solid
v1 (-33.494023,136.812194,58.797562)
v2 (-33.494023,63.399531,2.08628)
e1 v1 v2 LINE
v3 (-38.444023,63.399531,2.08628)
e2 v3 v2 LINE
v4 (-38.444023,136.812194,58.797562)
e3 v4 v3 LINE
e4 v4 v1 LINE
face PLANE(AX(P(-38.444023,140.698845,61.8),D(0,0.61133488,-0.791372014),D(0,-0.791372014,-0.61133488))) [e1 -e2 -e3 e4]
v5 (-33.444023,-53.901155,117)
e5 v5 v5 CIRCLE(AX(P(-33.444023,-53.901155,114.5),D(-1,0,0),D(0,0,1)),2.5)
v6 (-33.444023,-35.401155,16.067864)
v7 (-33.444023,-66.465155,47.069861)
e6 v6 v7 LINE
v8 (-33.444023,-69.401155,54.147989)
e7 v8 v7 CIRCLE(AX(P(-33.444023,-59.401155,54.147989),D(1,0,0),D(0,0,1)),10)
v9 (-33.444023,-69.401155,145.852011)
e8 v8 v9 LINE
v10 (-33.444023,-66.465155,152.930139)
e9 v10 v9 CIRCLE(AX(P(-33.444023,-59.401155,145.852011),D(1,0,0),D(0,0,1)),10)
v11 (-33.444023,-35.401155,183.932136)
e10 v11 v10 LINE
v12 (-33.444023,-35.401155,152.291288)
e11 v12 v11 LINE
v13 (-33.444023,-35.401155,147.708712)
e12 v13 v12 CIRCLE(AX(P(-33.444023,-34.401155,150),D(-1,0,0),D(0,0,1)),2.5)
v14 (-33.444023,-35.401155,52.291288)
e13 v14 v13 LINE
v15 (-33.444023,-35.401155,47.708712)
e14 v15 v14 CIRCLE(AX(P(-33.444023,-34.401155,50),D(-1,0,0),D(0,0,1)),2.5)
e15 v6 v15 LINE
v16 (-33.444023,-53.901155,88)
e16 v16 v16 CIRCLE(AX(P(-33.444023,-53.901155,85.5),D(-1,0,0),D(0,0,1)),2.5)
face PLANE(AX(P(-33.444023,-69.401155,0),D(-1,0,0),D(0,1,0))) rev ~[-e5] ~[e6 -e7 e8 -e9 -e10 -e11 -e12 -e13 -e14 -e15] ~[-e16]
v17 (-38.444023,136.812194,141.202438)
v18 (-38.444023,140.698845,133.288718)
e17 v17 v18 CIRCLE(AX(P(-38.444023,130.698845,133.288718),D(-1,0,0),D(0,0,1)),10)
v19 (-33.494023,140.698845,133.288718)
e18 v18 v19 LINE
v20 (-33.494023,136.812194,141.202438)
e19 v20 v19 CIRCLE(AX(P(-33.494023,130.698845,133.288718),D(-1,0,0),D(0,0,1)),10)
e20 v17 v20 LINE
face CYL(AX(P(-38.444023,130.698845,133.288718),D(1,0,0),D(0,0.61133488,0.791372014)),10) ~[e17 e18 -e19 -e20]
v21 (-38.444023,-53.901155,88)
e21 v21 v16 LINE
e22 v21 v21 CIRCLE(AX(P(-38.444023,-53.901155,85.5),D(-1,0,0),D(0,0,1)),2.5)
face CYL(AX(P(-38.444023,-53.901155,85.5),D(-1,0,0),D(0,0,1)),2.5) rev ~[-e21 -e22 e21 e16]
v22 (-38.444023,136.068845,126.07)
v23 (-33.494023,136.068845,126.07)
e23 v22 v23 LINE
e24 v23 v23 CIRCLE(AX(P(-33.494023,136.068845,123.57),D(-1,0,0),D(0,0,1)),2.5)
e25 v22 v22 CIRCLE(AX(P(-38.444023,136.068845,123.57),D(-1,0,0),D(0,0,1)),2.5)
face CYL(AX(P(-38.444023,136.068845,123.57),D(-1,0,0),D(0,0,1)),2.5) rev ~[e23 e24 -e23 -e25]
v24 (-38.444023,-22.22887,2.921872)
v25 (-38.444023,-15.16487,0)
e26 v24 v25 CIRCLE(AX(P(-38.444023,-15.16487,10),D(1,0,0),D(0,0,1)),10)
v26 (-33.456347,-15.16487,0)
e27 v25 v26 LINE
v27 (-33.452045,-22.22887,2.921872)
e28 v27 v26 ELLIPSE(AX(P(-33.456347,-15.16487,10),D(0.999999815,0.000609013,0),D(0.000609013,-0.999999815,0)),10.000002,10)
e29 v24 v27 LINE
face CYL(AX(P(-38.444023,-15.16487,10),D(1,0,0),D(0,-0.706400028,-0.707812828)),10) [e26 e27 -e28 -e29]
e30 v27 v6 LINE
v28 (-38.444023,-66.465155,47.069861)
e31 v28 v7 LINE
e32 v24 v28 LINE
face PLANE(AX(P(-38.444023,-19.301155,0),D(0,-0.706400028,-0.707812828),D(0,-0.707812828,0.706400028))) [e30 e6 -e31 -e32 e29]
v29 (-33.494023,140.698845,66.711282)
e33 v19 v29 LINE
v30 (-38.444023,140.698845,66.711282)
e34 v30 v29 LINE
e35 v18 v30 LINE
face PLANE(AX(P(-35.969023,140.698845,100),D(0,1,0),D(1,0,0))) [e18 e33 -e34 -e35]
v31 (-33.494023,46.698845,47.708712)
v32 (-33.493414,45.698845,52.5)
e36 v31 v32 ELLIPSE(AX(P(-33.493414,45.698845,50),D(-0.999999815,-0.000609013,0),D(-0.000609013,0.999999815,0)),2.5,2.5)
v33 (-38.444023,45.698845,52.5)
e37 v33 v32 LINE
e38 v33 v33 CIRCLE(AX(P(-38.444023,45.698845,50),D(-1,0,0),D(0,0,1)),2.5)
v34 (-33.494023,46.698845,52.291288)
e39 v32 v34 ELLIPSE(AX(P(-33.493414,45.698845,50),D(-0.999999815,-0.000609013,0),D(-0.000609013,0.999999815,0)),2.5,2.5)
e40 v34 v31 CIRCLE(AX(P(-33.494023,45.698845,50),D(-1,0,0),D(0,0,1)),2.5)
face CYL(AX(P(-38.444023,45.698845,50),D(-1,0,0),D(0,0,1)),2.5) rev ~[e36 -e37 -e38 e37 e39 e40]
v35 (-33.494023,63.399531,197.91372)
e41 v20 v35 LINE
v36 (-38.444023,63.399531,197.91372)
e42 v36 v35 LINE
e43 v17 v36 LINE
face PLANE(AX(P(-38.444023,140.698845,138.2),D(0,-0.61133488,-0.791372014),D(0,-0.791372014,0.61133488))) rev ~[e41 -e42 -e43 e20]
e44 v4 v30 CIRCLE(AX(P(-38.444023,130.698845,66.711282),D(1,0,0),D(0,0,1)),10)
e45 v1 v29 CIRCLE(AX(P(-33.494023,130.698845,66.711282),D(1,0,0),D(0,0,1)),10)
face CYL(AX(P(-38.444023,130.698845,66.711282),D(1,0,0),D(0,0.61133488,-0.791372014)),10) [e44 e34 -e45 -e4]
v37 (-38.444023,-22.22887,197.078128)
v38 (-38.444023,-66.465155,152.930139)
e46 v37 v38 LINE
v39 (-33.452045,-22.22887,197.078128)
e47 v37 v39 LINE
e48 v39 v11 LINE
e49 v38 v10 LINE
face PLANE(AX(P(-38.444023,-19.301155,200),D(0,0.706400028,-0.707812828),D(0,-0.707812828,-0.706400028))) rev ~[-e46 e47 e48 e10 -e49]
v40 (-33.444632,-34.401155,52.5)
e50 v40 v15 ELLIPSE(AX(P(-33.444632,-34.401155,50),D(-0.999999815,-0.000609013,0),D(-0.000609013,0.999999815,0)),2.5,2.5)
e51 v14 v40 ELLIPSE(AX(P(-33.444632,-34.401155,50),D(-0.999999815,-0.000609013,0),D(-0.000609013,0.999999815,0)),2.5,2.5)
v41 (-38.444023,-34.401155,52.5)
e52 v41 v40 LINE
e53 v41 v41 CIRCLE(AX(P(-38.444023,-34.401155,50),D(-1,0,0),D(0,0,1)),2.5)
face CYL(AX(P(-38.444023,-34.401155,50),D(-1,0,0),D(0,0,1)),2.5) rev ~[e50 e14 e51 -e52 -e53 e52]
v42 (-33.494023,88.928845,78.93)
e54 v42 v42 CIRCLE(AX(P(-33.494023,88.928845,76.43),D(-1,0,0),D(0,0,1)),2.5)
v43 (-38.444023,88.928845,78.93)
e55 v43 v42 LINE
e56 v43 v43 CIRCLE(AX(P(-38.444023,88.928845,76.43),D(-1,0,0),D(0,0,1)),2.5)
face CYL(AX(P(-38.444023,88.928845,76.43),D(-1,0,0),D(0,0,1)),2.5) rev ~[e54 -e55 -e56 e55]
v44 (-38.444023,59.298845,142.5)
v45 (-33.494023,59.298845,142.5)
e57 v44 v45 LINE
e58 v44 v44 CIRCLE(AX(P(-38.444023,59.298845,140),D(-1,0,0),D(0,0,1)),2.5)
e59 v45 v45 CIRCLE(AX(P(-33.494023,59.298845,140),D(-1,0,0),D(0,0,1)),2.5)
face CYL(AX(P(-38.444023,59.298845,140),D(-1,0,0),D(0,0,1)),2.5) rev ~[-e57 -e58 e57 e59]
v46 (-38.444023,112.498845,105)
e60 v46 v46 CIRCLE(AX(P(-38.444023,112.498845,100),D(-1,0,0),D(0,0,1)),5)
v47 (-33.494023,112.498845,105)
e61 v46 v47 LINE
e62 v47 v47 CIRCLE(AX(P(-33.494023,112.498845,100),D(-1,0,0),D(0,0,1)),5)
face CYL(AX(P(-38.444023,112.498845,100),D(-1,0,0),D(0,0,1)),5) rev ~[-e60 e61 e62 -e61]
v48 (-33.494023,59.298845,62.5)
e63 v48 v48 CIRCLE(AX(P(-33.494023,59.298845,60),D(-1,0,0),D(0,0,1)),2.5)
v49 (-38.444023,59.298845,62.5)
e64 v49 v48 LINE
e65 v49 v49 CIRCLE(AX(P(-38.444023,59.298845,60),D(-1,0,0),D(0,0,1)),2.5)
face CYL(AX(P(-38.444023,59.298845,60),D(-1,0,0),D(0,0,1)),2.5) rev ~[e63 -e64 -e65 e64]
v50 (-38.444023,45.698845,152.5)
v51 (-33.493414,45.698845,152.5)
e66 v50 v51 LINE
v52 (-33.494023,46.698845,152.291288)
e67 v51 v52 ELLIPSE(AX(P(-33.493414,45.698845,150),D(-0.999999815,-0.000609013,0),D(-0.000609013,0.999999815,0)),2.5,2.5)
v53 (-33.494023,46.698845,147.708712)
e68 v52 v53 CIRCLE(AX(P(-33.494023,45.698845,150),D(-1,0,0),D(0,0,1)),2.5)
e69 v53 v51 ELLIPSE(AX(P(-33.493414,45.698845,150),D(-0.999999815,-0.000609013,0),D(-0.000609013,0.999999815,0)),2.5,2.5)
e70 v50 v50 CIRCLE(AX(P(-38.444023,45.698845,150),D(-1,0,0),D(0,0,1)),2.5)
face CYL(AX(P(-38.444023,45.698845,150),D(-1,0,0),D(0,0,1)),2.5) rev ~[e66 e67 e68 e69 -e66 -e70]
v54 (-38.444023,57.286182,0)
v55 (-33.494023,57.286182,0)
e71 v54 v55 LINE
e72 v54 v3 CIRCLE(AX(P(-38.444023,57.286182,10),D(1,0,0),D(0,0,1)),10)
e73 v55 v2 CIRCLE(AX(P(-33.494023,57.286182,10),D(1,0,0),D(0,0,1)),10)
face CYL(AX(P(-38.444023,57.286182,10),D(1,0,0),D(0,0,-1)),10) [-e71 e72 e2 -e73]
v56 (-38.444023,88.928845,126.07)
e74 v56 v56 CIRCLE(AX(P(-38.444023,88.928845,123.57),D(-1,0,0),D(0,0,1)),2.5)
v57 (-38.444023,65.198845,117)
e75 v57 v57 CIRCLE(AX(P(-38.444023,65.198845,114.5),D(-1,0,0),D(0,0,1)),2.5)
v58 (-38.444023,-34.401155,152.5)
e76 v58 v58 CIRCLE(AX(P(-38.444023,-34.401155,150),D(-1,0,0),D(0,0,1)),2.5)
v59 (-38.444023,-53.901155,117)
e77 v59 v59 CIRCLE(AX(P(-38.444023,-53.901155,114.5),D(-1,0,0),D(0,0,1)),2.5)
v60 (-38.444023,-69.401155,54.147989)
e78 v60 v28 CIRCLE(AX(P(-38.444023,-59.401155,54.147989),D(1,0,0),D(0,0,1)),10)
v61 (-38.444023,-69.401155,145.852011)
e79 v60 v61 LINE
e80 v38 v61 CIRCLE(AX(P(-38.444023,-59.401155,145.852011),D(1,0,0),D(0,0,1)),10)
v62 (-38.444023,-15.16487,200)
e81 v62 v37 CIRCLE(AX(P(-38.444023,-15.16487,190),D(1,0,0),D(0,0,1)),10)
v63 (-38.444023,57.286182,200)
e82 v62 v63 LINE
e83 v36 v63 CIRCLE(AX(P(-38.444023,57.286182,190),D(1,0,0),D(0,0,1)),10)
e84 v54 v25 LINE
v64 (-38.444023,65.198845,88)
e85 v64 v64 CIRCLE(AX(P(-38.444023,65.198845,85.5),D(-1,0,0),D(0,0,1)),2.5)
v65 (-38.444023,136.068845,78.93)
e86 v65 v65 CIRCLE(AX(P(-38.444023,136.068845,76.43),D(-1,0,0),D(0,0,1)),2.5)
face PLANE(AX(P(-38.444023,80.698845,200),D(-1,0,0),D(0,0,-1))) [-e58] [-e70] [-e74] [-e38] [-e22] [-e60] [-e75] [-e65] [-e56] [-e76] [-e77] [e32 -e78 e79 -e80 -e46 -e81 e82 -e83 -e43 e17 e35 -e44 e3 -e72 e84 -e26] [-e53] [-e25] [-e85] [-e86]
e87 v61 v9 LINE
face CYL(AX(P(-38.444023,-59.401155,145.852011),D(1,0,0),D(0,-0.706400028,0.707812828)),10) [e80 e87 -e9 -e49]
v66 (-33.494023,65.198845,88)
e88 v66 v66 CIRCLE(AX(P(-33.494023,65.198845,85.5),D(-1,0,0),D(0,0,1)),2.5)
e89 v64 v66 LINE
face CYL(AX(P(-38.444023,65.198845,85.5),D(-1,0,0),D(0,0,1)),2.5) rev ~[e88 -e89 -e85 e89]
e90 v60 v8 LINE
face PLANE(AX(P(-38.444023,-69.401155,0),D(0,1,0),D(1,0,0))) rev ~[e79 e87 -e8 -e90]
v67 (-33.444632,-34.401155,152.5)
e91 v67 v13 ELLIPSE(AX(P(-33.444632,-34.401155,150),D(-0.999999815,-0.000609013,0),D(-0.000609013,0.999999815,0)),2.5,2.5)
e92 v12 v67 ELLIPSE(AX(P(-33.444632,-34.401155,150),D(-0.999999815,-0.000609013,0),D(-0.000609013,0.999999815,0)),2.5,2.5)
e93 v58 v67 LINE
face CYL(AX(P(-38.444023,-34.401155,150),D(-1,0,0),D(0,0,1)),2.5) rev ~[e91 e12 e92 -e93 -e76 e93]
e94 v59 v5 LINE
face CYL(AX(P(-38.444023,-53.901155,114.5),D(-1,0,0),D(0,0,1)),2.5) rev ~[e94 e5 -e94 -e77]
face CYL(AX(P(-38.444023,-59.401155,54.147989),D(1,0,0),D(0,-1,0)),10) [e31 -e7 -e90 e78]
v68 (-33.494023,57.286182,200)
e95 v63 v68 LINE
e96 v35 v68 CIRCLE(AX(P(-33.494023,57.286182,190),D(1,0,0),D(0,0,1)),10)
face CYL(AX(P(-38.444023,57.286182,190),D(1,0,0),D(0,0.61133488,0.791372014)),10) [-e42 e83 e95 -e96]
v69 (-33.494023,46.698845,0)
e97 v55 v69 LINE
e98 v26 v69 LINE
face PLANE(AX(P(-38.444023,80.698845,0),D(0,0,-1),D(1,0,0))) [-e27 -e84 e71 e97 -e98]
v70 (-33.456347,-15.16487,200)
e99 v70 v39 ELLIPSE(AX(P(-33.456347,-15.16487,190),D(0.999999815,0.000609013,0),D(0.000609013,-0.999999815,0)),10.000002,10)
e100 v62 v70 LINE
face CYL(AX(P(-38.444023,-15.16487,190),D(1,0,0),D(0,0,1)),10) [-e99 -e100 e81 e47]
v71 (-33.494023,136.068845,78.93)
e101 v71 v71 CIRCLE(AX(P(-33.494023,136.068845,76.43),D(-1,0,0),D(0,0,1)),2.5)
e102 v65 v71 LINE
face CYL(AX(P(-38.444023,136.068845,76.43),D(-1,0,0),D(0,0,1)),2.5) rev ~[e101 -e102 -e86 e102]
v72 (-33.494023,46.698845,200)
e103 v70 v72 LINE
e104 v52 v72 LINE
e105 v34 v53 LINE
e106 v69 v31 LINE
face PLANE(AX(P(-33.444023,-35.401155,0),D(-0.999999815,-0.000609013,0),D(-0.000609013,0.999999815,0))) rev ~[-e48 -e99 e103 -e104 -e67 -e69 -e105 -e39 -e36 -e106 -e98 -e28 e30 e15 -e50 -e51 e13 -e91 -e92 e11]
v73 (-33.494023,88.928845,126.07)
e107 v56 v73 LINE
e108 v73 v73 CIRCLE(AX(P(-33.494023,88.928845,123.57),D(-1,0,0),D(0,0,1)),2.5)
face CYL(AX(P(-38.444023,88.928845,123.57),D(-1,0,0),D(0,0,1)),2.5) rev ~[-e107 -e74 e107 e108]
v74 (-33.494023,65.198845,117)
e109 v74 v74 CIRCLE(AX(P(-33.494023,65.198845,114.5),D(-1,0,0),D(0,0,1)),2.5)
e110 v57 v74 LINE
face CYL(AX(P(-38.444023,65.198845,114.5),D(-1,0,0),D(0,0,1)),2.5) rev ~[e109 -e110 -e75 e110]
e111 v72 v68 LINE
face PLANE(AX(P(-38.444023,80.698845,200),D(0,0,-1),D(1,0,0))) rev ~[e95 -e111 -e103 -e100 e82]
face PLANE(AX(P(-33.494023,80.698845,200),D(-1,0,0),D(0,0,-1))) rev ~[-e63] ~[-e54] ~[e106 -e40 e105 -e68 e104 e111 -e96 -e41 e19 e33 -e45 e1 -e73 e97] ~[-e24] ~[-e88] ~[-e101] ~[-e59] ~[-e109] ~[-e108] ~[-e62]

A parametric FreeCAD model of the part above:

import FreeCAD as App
import Part
import Sketcher
from FreeCAD import Vector


def edges_at(feature, points):
    """Names of the edges that pass closest to the given points."""
    edges = feature.Shape.Edges
    near = lambda p: min(range(len(edges)), key=lambda i: edges[i].distToShape(Part.Vertex(*p))[0])
    return sorted({f"Edge{near(p) + 1}" for p in points})

doc = App.newDocument("Part")
body = doc.addObject("PartDesign::Body", "Body")

sketch1 = doc.addObject("Sketcher::SketchObject", "Sketch")
body.addObject(sketch1)
sketch1.AttachmentSupport = (doc.XY_Plane, [""])
sketch1.MapMode = "FlatFace"
sketch1.addGeometry([
    Part.LineSegment(Vector(-38.4, -69.4, 0), Vector(-33.4, -69.4, 0)),
    Part.LineSegment(Vector(-33.4, -69.4, 0), Vector(-33.4, -35.4, 0)),
    Part.LineSegment(Vector(-33.4, -35.4, 0), Vector(-33.5, 46.7, 0)),
    Part.LineSegment(Vector(-33.5, 46.7, 0), Vector(-33.5, 80.7, 0)),
    Part.LineSegment(Vector(-33.5, 80.7, 0), Vector(-38.4, 80.7, 0)),
    Part.LineSegment(Vector(-38.4, 80.7, 0), Vector(-38.4, -69.4, 0)),
], False)
sketch1.addConstraint([
    Sketcher.Constraint("Coincident", 0, 2, 1, 1),
    Sketcher.Constraint("Coincident", 1, 2, 2, 1),
    Sketcher.Constraint("Coincident", 2, 2, 3, 1),
    Sketcher.Constraint("Coincident", 3, 2, 4, 1),
    Sketcher.Constraint("Coincident", 4, 2, 5, 1),
    Sketcher.Constraint("Coincident", 5, 2, 0, 1),
    Sketcher.Constraint("Horizontal", 0),
    Sketcher.Constraint("Vertical", 1),
    Sketcher.Constraint("Vertical", 3),
    Sketcher.Constraint("Horizontal", 4),
    Sketcher.Constraint("Vertical", 5),
    Sketcher.Constraint("Equal", 1, 3),
    Sketcher.Constraint("DistanceX", 0, 1, 0, 2, 5.0),
    Sketcher.Constraint("DistanceY", 1, 1, 1, 2, 34.0),
    Sketcher.Constraint("DistanceY", 5, 2, 5, 1, 150.1),
    Sketcher.Constraint("DistanceX", 4, 2, 4, 1, 4.95),
    Sketcher.Constraint("DistanceX", 0, 2, -1, 1, 33.444023),
    Sketcher.Constraint("DistanceY", 0, 2, -1, 1, 69.401155),
])
pad1 = doc.addObject("PartDesign::Pad", "Pad")
body.addObject(pad1)
pad1.Profile = sketch1
pad1.Length = 200

sketch2 = doc.addObject("Sketcher::SketchObject", "Sketch001")
body.addObject(sketch2)
sketch2.AttachmentSupport = (doc.YZ_Plane, [""])
sketch2.MapMode = "FlatFace"
sketch2.AttachmentOffset = App.Placement(Vector(0, 0, -38.444023), App.Rotation())
sketch2.addGeometry([
    Part.Circle(Vector(65.2, 85.5, 0), Vector(0, 0, 1), 2.5),
    Part.Circle(Vector(65.2, 114.5, 0), Vector(0, 0, 1), 2.5),
    Part.Circle(Vector(45.7, 50, 0), Vector(0, 0, 1), 2.5),
    Part.Circle(Vector(45.7, 150, 0), Vector(0, 0, 1), 2.5),
    Part.Circle(Vector(-34.4, 150, 0), Vector(0, 0, 1), 2.5),
    Part.Circle(Vector(-53.9, 114.5, 0), Vector(0, 0, 1), 2.5),
    Part.Circle(Vector(-53.9, 85.5, 0), Vector(0, 0, 1), 2.5),
    Part.Circle(Vector(-34.4, 50, 0), Vector(0, 0, 1), 2.5),
], False)
sketch2.addConstraint([
    Sketcher.Constraint("Equal", 0, 1),
    Sketcher.Constraint("Equal", 1, 2),
    Sketcher.Constraint("Equal", 2, 3),
    Sketcher.Constraint("Equal", 3, 4),
    Sketcher.Constraint("Equal", 4, 5),
    Sketcher.Constraint("Equal", 5, 6),
    Sketcher.Constraint("Equal", 6, 7),
    Sketcher.Constraint("Horizontal", 3, 3, 4, 3),
    Sketcher.Constraint("Horizontal", 1, 3, 5, 3),
    Sketcher.Constraint("Horizontal", 0, 3, 6, 3),
    Sketcher.Constraint("Horizontal", 2, 3, 7, 3),
    Sketcher.Constraint("Vertical", 0, 3, 1, 3),
    Sketcher.Constraint("Vertical", 2, 3, 3, 3),
    Sketcher.Constraint("Vertical", 5, 3, 6, 3),
    Sketcher.Constraint("Vertical", 4, 3, 7, 3),
    Sketcher.Constraint("Diameter", 0, 5.0),
    Sketcher.Constraint("DistanceY", -1, 1, 2, 3, 50.0),
    Sketcher.Constraint("DistanceY", -1, 1, 3, 3, 150.0),
    Sketcher.Constraint("DistanceY", 0, 3, 1, 3, 29.0),
    Sketcher.Constraint("DistanceY", -1, 1, 0, 3, 85.5),
    Sketcher.Constraint("DistanceX", 2, 3, 0, 3, 19.5),
    Sketcher.Constraint("DistanceX", 4, 3, 3, 3, 80.1),
    Sketcher.Constraint("DistanceX", 5, 3, 4, 3, 19.5),
    Sketcher.Constraint("DistanceX", -1, 1, 0, 3, 65.198845),
])
pocket1 = doc.addObject("PartDesign::Pocket", "Pocket")
body.addObject(pocket1)
pocket1.Profile = sketch2
pocket1.Length = 100
pocket1.Reversed = True

sketch3 = doc.addObject("Sketcher::SketchObject", "Sketch002")
body.addObject(sketch3)
sketch3.AttachmentSupport = (doc.XZ_Plane, [""])
sketch3.MapMode = "FlatFace"
sketch3.AttachmentOffset = App.Placement(Vector(0, 0, -80.698845), App.Rotation())
sketch3.addGeometry([
    Part.LineSegment(Vector(-38.4, 0, 0), Vector(-38.4, 200, 0)),
    Part.LineSegment(Vector(-38.4, 200, 0), Vector(-33.5, 200, 0)),
    Part.LineSegment(Vector(-33.5, 200, 0), Vector(-33.5, 0, 0)),
    Part.LineSegment(Vector(-33.5, 0, 0), Vector(-38.4, 0, 0)),
], False)
sketch3.addConstraint([
    Sketcher.Constraint("Coincident", 0, 2, 1, 1),
    Sketcher.Constraint("Coincident", 1, 2, 2, 1),
    Sketcher.Constraint("Coincident", 2, 2, 3, 1),
    Sketcher.Constraint("Coincident", 3, 2, 0, 1),
    Sketcher.Constraint("Vertical", 0),
    Sketcher.Constraint("Horizontal", 1),
    Sketcher.Constraint("Vertical", 2),
    Sketcher.Constraint("Horizontal", 3),
    Sketcher.Constraint("PointOnObject", 2, 2, -1),
    Sketcher.Constraint("DistanceY", 0, 1, 0, 2, 200.0),
    Sketcher.Constraint("DistanceX", 1, 1, 1, 2, 4.95),
    Sketcher.Constraint("DistanceX", 0, 2, -1, 1, 38.444023),
])
pad2 = doc.addObject("PartDesign::Pad", "Pad001")
body.addObject(pad2)
pad2.Profile = sketch3
pad2.Length = 60
pad2.Reversed = True

sketch4 = doc.addObject("Sketcher::SketchObject", "Sketch003")
body.addObject(sketch4)
sketch4.AttachmentSupport = (doc.YZ_Plane, [""])
sketch4.MapMode = "FlatFace"
sketch4.AttachmentOffset = App.Placement(Vector(0, 0, -38.444023), App.Rotation())
sketch4.addGeometry([
    Part.Circle(Vector(136.1, 76.4, 0), Vector(0, 0, 1), 2.5),
    Part.Circle(Vector(136.1, 123.6, 0), Vector(0, 0, 1), 2.5),
    Part.Circle(Vector(88.9, 76.4, 0), Vector(0, 0, 1), 2.5),
    Part.Circle(Vector(88.9, 123.6, 0), Vector(0, 0, 1), 2.5),
    Part.Circle(Vector(112.5, 100, 0), Vector(0, 0, 1), 5),
    Part.Circle(Vector(59.3, 60, 0), Vector(0, 0, 1), 2.5),
    Part.Circle(Vector(59.3, 140, 0), Vector(0, 0, 1), 2.5),
    Part.LineSegment(Vector(60.7, 0, 0), Vector(140.7, 61.8, 0)),
    Part.LineSegment(Vector(140.7, 61.8, 0), Vector(140.7, 0, 0)),
    Part.LineSegment(Vector(140.7, 0, 0), Vector(60.7, 0, 0)),
    Part.LineSegment(Vector(-69.4, 50, 0), Vector(-19.3, 0, 0)),
    Part.LineSegment(Vector(-19.3, 0, 0), Vector(-69.4, 0, 0)),
    Part.LineSegment(Vector(-69.4, 0, 0), Vector(-69.4, 50, 0)),
    Part.LineSegment(Vector(-19.3, 200, 0), Vector(-69.4, 150, 0)),
    Part.LineSegment(Vector(-69.4, 150, 0), Vector(-69.4, 200, 0)),
    Part.LineSegment(Vector(-69.4, 200, 0), Vector(-19.3, 200, 0)),
    Part.LineSegment(Vector(140.7, 138.2, 0), Vector(60.7, 200, 0)),
    Part.LineSegment(Vector(60.7, 200, 0), Vector(140.7, 200, 0)),
    Part.LineSegment(Vector(140.7, 200, 0), Vector(140.7, 138.2, 0)),
], False)
sketch4.addConstraint([
    Sketcher.Constraint("Coincident", 7, 2, 8, 1),
    Sketcher.Constraint("Coincident", 8, 2, 9, 1),
    Sketcher.Constraint("Coincident", 9, 2, 7, 1),
    Sketcher.Constraint("Coincident", 10, 2, 11, 1),
    Sketcher.Constraint("Coincident", 11, 2, 12, 1),
    Sketcher.Constraint("Coincident", 12, 2, 10, 1),
    Sketcher.Constraint("Coincident", 13, 2, 14, 1),
    Sketcher.Constraint("Coincident", 14, 2, 15, 1),
    Sketcher.Constraint("Coincident", 15, 2, 13, 1),
    Sketcher.Constraint("Coincident", 16, 2, 17, 1),
    Sketcher.Constraint("Coincident", 17, 2, 18, 1),
    Sketcher.Constraint("Coincident", 18, 2, 16, 1),
    Sketcher.Constraint("Vertical", 8),
    Sketcher.Constraint("Horizontal", 9),
    Sketcher.Constraint("Horizontal", 11),
    Sketcher.Constraint("Vertical", 12),
    Sketcher.Constraint("Vertical", 14),
    Sketcher.Constraint("Horizontal", 15),
    Sketcher.Constraint("Horizontal", 17),
    Sketcher.Constraint("Vertical", 18),
    Sketcher.Constraint("Equal", 0, 1),
    Sketcher.Constraint("Equal", 1, 2),
    Sketcher.Constraint("Equal", 2, 3),
    Sketcher.Constraint("Equal", 3, 5),
    Sketcher.Constraint("Equal", 5, 6),
    Sketcher.Constraint("PointOnObject", 8, 2, -1),
    Sketcher.Constraint("PointOnObject", 10, 2, -1),
    Sketcher.Constraint("Horizontal", 0, 3, 2, 3),
    Sketcher.Constraint("Horizontal", 1, 3, 3, 3),
    Sketcher.Constraint("Horizontal", 15, 2, 16, 2),
    Sketcher.Constraint("Vertical", 0, 3, 1, 3),
    Sketcher.Constraint("Vertical", 2, 3, 3, 3),
    Sketcher.Constraint("Vertical", 5, 3, 6, 3),
    Sketcher.Constraint("Vertical", 12, 2, 13, 2),
    Sketcher.Constraint("Vertical", 10, 2, 15, 2),
    Sketcher.Constraint("Vertical", 9, 2, 16, 2),
    Sketcher.Constraint("Vertical", 8, 2, 17, 2),
    Sketcher.Constraint("Equal", 12, 14),
    Sketcher.Constraint("Equal", 8, 18),
    Sketcher.Constraint("Diameter", 0, 5.0),
    Sketcher.Constraint("Diameter", 4, 10.0),
    Sketcher.Constraint("DistanceX", 9, 2, 9, 1, 80.0),
    Sketcher.Constraint("DistanceY", 12, 1, 12, 2, 50.0),
    Sketcher.Constraint("DistanceX", 11, 2, 11, 1, 50.1),
    Sketcher.Constraint("DistanceY", 8, 2, 8, 1, 61.8),
    Sketcher.Constraint("DistanceY", -1, 1, 4, 3, 100.0),
    Sketcher.Constraint("DistanceY", -1, 1, 5, 3, 60.0),
    Sketcher.Constraint("DistanceY", -1, 1, 6, 3, 140.0),
    Sketcher.Constraint("DistanceY", -1, 1, 13, 2, 150.0),
    Sketcher.Constraint("DistanceX", 10, 2, 9, 2, 80.0),
    Sketcher.Constraint("DistanceX", 5, 3, 4, 3, 53.2),
    Sketcher.Constraint("DistanceX", 4, 3, 7, 2, 28.2),
    Sketcher.Constraint("DistanceY", -1, 1, 0, 3, 76.43),
    Sketcher.Constraint("DistanceY", -1, 1, 1, 3, 123.57),
    Sketcher.Constraint("DistanceX", 2, 3, 0, 3, 47.14),
    Sketcher.Constraint("DistanceX", 4, 3, 0, 3, 23.57),
    Sketcher.Constraint("DistanceX", -1, 1, 0, 3, 136.068845),
])
pocket2 = doc.addObject("PartDesign::Pocket", "Pocket001")
body.addObject(pocket2)
pocket2.Profile = sketch4
pocket2.Length = 60
pocket2.Reversed = True
doc.recompute()

fillet = doc.addObject("PartDesign::Fillet", "Fillet")
body.addObject(fillet)
fillet.Base = (pocket2, edges_at(pocket2, [
    (-35.969, 60.699, 0),
    (-35.944, -69.401, 50),
    (-35.944, -69.401, 150),
    (-35.969, 60.699, 200),
    (-35.969, 140.699, 138.2),
    (-35.969, 140.699, 61.8),
    (-35.949, -19.301, 0),
    (-35.949, -19.301, 200),
]))
fillet.Radius = 10

doc.recompute()
